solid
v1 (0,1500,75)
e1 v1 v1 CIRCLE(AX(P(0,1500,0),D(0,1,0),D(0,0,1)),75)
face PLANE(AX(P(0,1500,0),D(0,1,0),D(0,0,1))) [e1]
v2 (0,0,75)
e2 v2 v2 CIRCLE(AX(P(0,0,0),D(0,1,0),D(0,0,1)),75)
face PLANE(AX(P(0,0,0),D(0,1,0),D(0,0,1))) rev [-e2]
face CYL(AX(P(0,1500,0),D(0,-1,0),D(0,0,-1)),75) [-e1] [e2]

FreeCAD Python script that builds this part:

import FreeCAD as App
import Part
import Sketcher

V = App.Vector
Q = App.Units.Quantity

doc = App.newDocument("Part")
params = doc.addObject("Spreadsheet::Sheet", "Params")
for row, (alias, value) in enumerate([
    ("sketch1_diameter", "150 mm"),
    ("pad1_length", "1500 mm"),
], start=1):
    params.set(f"A{row}", alias)
    params.set(f"B{row}", "=" + value)
    params.setAlias(f"B{row}", alias)

body = doc.addObject("PartDesign::Body", "Body")

# Sketch on XZ plane
sketch1 = body.newObject("Sketcher::SketchObject", "Sketch")
sketch1.AttachmentSupport = (doc.getObject("XZ_Plane"), [""])
sketch1.MapMode = "FlatFace"
sketch1.addGeometry(Part.Circle(V(0, 0, 0), V(0, 0, 1), 75), False)
sketch1.addConstraint([
    Sketcher.Constraint("Coincident", 0, 3, -1, 1),
    Sketcher.Constraint("Diameter", 0, Q("150 mm")),
])
sketch1.setExpression("Constraints[1]", "Params.sketch1_diameter")
pad1 = body.newObject("PartDesign::Pad", "Pad")
pad1.Profile = sketch1
pad1.setExpression("Length", "Params.pad1_length")
pad1.Reversed = True

doc.recompute()
